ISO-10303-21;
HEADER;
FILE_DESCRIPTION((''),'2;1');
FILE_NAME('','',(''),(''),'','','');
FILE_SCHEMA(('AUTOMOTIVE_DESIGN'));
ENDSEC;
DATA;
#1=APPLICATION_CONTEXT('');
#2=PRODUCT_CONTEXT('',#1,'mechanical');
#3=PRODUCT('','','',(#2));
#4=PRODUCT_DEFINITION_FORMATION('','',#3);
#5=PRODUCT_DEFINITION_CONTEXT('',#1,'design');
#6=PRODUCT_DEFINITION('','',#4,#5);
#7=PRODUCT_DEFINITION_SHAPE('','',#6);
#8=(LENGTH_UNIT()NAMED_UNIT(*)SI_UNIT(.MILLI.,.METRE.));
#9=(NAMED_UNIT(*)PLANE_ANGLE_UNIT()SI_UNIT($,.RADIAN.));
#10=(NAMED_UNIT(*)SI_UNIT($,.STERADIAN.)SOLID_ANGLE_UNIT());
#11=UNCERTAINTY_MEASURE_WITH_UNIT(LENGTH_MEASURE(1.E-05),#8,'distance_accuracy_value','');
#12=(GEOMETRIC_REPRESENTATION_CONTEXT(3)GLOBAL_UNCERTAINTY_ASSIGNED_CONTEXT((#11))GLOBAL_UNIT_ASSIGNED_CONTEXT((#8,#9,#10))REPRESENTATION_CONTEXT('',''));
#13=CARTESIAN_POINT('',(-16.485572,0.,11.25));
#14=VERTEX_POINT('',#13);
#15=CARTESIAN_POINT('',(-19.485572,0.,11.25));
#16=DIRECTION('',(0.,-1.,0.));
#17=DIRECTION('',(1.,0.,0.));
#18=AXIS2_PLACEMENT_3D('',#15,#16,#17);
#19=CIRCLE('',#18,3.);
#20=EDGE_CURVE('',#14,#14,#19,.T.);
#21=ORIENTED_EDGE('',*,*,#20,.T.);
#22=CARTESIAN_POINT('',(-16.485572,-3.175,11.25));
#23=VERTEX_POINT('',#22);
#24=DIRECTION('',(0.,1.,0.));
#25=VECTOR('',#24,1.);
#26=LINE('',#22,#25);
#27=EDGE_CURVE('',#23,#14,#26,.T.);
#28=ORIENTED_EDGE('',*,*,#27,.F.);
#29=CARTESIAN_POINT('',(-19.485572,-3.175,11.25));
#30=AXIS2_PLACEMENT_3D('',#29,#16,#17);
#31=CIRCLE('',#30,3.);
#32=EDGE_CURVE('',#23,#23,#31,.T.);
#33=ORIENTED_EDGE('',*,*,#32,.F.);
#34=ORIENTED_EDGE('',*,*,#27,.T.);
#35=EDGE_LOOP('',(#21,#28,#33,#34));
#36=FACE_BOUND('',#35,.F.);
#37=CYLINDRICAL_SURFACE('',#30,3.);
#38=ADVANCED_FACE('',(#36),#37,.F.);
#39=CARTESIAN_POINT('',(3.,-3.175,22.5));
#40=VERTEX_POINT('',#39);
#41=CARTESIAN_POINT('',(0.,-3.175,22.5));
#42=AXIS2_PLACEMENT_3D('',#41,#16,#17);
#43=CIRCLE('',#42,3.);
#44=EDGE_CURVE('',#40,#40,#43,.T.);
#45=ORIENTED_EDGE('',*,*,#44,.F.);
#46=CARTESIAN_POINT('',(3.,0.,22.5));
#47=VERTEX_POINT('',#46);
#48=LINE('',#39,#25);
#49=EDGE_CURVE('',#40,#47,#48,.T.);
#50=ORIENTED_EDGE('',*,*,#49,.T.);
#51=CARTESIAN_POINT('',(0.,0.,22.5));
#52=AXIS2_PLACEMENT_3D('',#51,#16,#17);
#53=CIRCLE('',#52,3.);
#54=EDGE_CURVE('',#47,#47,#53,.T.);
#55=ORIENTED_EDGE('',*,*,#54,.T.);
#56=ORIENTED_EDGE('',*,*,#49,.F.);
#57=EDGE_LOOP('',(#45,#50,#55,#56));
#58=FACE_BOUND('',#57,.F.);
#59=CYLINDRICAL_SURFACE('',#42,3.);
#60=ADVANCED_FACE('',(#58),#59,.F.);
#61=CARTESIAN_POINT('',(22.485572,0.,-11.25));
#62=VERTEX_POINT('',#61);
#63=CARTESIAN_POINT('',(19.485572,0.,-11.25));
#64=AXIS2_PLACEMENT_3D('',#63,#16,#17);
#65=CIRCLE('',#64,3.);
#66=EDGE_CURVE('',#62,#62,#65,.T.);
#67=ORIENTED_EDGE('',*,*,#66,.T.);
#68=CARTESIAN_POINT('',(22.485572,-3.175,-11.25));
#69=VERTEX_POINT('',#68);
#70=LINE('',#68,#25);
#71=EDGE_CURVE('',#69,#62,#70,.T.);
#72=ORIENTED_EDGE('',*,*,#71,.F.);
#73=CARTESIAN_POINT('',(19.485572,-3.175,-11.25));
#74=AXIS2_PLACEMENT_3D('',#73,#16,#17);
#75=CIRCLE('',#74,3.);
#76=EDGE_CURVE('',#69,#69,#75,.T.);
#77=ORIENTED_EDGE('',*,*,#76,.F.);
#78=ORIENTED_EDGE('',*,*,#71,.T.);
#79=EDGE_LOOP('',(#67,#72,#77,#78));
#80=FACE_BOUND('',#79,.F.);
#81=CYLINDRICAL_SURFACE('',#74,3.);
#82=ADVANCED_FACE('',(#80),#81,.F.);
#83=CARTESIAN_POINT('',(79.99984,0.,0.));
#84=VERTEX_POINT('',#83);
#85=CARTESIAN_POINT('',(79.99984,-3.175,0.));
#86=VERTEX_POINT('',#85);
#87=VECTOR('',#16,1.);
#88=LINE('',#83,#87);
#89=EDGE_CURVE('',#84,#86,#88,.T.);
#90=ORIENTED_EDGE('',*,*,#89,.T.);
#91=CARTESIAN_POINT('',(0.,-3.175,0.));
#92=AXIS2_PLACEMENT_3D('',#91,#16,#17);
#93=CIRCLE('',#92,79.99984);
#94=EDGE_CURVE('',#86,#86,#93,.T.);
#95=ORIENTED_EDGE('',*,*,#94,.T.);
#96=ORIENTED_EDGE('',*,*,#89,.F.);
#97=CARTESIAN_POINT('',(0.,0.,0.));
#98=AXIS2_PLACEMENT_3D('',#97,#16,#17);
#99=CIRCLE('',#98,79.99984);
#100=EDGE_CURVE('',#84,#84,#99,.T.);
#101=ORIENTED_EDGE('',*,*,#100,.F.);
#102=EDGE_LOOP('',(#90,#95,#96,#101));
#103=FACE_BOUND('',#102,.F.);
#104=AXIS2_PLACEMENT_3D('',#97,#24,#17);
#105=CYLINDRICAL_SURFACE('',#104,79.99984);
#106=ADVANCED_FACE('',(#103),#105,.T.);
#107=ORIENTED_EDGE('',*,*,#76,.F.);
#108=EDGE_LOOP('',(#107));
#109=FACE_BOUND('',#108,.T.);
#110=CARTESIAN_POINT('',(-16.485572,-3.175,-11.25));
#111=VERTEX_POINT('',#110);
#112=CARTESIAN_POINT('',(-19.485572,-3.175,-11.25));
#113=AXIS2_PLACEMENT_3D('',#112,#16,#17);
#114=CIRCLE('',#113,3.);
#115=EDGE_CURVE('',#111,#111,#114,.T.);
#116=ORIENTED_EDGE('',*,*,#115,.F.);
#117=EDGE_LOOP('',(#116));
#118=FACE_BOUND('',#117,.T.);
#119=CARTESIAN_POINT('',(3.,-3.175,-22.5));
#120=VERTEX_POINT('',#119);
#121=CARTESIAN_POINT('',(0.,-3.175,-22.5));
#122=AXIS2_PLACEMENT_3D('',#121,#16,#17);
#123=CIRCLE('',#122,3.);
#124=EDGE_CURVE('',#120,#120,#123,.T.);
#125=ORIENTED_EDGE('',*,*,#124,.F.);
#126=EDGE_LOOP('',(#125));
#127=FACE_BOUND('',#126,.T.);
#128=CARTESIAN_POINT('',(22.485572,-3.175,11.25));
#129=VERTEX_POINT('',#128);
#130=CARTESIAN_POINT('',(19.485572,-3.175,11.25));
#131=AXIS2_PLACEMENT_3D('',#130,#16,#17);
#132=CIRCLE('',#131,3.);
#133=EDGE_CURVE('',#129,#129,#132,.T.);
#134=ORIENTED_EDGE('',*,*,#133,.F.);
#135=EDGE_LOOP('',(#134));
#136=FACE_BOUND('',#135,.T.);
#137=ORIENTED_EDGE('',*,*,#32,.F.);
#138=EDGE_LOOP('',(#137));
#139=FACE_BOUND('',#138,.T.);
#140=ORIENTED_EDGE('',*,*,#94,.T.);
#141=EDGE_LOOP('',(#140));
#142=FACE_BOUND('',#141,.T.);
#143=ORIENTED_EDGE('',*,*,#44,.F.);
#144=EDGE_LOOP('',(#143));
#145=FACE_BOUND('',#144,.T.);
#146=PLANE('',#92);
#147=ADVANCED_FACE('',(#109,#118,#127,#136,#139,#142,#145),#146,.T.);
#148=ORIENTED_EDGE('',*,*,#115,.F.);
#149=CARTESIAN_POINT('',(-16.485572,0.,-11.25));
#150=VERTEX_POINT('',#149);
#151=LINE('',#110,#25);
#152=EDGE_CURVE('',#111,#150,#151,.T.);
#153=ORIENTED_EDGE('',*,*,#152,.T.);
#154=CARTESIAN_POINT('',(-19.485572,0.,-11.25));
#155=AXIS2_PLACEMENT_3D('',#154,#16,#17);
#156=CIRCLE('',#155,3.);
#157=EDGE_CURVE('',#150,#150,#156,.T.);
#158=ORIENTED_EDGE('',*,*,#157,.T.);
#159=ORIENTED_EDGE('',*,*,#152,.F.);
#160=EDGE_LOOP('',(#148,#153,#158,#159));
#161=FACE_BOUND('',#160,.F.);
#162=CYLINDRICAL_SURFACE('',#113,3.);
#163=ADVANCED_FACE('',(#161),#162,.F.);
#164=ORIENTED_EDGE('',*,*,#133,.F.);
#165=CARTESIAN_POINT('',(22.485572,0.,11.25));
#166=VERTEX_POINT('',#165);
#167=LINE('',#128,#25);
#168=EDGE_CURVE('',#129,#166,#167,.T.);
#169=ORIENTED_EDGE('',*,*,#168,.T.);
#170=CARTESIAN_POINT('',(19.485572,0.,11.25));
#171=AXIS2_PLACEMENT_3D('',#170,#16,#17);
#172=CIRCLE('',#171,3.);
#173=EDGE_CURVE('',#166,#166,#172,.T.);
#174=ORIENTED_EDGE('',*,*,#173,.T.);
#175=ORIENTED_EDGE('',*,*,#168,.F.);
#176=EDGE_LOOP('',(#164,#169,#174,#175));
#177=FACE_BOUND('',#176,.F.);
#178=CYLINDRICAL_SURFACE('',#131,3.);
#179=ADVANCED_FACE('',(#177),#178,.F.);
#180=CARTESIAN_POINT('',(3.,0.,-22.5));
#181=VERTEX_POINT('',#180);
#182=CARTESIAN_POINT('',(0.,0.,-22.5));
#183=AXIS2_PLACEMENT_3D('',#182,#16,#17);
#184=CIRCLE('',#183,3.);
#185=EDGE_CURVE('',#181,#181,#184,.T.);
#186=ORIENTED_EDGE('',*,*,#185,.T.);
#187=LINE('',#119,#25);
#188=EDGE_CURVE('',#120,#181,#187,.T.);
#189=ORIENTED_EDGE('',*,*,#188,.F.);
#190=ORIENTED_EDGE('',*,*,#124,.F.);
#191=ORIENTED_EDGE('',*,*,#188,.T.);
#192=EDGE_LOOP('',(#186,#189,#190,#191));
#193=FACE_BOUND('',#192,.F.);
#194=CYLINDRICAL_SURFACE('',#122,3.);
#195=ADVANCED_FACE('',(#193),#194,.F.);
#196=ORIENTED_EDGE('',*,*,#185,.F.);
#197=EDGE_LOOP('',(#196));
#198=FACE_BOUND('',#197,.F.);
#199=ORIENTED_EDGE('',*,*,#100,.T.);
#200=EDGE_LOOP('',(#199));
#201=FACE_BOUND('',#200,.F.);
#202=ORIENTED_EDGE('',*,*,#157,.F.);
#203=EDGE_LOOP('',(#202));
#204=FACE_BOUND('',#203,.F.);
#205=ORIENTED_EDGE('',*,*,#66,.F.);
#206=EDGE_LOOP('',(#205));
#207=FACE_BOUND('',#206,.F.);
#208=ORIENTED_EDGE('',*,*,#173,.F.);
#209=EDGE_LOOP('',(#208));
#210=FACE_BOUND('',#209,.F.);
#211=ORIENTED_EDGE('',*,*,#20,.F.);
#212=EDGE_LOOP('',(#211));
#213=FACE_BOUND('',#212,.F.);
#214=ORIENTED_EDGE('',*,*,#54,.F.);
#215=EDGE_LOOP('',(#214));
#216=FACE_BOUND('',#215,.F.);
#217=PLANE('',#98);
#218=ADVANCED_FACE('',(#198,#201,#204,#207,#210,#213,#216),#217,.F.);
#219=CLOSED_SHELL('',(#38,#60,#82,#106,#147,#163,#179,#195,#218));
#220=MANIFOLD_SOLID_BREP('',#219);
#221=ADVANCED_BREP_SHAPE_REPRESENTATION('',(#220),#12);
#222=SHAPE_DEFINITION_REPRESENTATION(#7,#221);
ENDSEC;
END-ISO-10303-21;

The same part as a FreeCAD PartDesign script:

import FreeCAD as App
import Part
import Sketcher
Q = App.Units.Quantity

doc = App.newDocument("Part")
body = doc.addObject("PartDesign::Body", "Body")

sketch1 = body.newObject("Sketcher::SketchObject", "Sketch")
sketch1.AttachmentSupport = (doc.getObject("XZ_Plane"), [""])
sketch1.MapMode = "FlatFace"
sketch1.addGeometry(Part.Circle(App.Vector(0, 0, 0), App.Vector(0, 0, 1), 79.99984), False)
sketch1.addConstraint([
    Sketcher.Constraint("Coincident", 0, 3, -1, 1),
    Sketcher.Constraint("Diameter", 0, Q("159.99968 mm")),
])
pad1 = body.newObject("PartDesign::Pad", "Pad")
pad1.Profile = sketch1
pad1.Length = 3.175

sketch2 = body.newObject("Sketcher::SketchObject", "Sketch001")
sketch2.AttachmentSupport = (doc.getObject("XZ_Plane"), [""])
sketch2.MapMode = "FlatFace"
sketch2.AttachmentOffset = App.Placement(App.Vector(0, 0, 3.175), App.Rotation())
sketch2.addGeometry([
    Part.Circle(App.Vector(0, 22.5, 0), App.Vector(0, 0, 1), 3),
    Part.Circle(App.Vector(-19.485572, 11.25, 0), App.Vector(0, 0, 1), 3),
    Part.Circle(App.Vector(-19.485572, -11.25, 0), App.Vector(0, 0, 1), 3),
    Part.Circle(App.Vector(0, -22.5, 0), App.Vector(0, 0, 1), 3),
    Part.Circle(App.Vector(19.485572, -11.25, 0), App.Vector(0, 0, 1), 3),
    Part.Circle(App.Vector(19.485572, 11.25, 0), App.Vector(0, 0, 1), 3),
], False)
sketch2.addConstraint([
    Sketcher.Constraint("Equal", 0, 1),
    Sketcher.Constraint("Equal", 1, 2),
    Sketcher.Constraint("Equal", 2, 3),
    Sketcher.Constraint("Equal", 3, 4),
    Sketcher.Constraint("Equal", 4, 5),
    Sketcher.Constraint("Symmetric", 0, 3, 3, 3, -1, 1),
    Sketcher.Constraint("Symmetric", 1, 3, 4, 3, -1, 1),
    Sketcher.Constraint("Symmetric", 2, 3, 5, 3, -1, 1),
    Sketcher.Constraint("Symmetric", 2, 3, 4, 3, -2),
    Sketcher.Constraint("PointOnObject", 0, 3, -2),
    Sketcher.Constraint("Diameter", 0, Q("6 mm")),
    Sketcher.Constraint("DistanceY", 3, 3, 0, 3, Q("45 mm")),
    Sketcher.Constraint("DistanceY", 2, 3, 1, 3, Q("22.5 mm")),
    Sketcher.Constraint("DistanceX", 1, 3, -1, 1, Q("19.485572 mm")),
])
pocket1 = body.newObject("PartDesign::Pocket", "Pocket")
pocket1.Profile = sketch2
pocket1.Length = 25
pocket2 = body.newObject("PartDesign::Pocket", "Pocket001")
pocket2.Profile = sketch2
pocket2.Length = 25

doc.recompute()
